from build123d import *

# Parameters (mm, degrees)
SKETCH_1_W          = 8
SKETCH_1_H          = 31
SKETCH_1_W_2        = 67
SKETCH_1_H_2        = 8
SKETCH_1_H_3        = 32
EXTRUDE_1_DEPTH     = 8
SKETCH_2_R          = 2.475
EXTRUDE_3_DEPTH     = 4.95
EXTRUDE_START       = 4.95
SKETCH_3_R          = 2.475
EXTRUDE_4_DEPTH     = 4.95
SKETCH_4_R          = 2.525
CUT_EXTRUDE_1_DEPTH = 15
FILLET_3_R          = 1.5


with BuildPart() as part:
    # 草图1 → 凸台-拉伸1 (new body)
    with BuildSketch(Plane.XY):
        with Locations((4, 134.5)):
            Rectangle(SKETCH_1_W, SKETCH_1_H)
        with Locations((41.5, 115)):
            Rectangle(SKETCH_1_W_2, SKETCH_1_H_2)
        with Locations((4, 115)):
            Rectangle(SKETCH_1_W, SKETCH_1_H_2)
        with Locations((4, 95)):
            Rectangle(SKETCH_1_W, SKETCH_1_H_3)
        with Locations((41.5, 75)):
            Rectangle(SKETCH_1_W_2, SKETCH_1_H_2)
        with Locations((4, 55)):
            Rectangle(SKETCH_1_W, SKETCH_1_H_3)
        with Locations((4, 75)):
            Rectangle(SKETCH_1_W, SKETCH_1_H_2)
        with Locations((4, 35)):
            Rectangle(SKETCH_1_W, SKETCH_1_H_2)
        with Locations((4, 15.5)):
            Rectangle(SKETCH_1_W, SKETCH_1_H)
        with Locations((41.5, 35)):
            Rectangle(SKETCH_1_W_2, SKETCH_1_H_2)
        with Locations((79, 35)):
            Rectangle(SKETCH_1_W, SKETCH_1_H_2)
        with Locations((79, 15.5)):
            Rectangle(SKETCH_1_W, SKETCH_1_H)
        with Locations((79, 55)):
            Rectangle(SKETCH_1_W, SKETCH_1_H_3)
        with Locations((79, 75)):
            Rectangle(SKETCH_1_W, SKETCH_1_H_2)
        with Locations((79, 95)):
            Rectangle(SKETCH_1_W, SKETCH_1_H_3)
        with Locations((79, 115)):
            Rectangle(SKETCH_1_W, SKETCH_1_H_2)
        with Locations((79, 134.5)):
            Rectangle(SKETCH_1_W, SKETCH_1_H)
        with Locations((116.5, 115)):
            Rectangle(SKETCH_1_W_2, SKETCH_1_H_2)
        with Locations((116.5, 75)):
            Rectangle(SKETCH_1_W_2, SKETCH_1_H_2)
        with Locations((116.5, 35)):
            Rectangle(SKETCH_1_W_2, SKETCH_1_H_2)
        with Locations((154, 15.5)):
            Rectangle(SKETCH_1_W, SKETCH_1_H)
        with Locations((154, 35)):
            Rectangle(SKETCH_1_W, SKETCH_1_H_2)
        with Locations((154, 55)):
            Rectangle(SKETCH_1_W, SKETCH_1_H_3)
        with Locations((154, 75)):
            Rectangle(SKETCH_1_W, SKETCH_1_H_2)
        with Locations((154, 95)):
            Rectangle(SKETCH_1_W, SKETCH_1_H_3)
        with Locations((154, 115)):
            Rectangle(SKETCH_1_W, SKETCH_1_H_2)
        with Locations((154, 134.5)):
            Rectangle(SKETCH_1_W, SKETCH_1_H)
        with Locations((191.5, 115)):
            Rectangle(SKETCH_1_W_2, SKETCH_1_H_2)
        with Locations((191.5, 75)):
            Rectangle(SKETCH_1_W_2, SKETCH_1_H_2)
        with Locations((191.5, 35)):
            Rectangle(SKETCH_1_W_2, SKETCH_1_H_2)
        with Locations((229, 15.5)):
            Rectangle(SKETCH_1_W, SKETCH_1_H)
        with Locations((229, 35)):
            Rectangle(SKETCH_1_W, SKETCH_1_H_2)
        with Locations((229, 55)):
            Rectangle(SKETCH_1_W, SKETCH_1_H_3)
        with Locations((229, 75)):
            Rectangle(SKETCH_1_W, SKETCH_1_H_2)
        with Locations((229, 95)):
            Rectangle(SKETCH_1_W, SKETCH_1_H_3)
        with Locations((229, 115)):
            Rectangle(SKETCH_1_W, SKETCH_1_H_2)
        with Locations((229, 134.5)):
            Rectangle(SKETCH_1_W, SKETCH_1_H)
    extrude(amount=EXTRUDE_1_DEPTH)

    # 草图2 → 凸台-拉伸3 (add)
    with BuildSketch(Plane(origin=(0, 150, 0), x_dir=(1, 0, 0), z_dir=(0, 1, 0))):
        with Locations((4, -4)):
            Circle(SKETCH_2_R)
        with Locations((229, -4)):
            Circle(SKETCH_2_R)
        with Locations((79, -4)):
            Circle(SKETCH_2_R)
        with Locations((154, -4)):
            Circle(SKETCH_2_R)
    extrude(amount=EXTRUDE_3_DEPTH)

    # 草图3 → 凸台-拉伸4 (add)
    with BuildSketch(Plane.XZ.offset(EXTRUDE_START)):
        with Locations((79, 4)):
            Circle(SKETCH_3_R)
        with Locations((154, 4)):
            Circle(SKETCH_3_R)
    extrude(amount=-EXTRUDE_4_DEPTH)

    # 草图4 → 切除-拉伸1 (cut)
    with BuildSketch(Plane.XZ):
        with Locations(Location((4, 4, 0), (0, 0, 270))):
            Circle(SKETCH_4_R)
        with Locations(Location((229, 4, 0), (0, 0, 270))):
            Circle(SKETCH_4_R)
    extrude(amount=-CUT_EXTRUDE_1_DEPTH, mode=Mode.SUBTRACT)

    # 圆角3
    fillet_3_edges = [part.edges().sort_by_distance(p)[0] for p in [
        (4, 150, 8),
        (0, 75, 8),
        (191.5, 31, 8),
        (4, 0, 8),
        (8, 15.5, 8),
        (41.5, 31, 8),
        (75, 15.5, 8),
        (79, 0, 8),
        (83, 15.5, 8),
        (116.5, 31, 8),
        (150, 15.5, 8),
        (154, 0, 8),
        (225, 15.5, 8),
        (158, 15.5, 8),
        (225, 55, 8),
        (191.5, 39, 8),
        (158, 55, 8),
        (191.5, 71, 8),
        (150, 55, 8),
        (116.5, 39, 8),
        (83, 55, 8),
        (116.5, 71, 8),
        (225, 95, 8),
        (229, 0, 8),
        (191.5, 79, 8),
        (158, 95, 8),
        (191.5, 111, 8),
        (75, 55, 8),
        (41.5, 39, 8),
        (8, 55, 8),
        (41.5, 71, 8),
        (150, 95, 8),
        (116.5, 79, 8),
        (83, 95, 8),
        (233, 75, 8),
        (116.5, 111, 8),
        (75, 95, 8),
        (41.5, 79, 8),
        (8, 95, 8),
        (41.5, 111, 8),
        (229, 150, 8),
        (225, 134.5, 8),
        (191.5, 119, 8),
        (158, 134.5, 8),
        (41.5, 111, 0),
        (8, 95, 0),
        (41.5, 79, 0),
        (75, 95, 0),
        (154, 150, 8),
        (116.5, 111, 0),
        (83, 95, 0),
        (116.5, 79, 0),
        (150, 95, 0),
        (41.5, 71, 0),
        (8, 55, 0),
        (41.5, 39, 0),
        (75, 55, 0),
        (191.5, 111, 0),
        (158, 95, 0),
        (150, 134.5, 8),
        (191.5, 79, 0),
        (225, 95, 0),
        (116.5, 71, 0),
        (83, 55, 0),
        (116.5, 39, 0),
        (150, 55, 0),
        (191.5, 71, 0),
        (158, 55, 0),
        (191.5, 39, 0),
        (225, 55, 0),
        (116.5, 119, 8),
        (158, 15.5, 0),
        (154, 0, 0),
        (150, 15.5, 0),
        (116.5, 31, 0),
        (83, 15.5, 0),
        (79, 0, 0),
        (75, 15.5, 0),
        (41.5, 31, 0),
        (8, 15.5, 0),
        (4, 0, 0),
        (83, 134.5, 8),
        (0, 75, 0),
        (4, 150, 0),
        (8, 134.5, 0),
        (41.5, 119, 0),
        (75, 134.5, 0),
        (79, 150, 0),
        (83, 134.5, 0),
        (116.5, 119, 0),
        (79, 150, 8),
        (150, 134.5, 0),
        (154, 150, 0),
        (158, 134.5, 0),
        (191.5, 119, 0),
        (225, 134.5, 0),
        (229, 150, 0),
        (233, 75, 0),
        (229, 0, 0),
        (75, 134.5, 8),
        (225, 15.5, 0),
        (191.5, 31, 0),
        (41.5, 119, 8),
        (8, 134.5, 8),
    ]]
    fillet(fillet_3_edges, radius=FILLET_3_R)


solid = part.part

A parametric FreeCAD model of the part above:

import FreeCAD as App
import Part
import Sketcher

V = App.Vector
Q = App.Units.Quantity


def edges_at(feature, points):
    """Names of the edges that pass closest to the given points."""
    edges = feature.Shape.Edges
    near = lambda p: min(range(len(edges)), key=lambda i: edges[i].distToShape(Part.Vertex(*p))[0])
    return sorted({f"Edge{near(p) + 1}" for p in points})


def add_polygon(sketch, points):
    """Adds a closed chain of lines whose ends are joined by coincident constraints."""
    first, n = sketch.GeometryCount, len(points)
    for a, b in zip(points, points[1:] + points[:1]):
        sketch.addGeometry(Part.LineSegment(App.Vector(*a, 0), App.Vector(*b, 0)), False)
    for i in range(n):
        sketch.addConstraint(Sketcher.Constraint("Coincident", first + i, 2, first + (i + 1) % n, 1))

doc = App.newDocument("Part")
params = doc.addObject("Spreadsheet::Sheet", "Params")
for row, (alias, value) in enumerate([
    ("sketch1_width", "8 mm"),
    ("sketch1_width2", "67 mm"),
    ("sketch1_height", "150 mm"),
    ("sketch1_height2", "31 mm"),
    ("sketch1_height3", "32 mm"),
    ("pad1_length", "8 mm"),
    ("sketch2_diameter", "4.95 mm"),
    ("pad2_length", "4.95 mm"),
    ("sketch3_diameter", "4.95 mm"),
    ("pad3_length", "4.95 mm"),
    ("sketch4_diameter", "5.05 mm"),
    ("pocket1_length", "15 mm"),
    ("fillet_radius", "1.5 mm"),
], start=1):
    params.set(f"A{row}", alias)
    params.set(f"B{row}", "=" + value)
    params.setAlias(f"B{row}", alias)

body = doc.addObject("PartDesign::Body", "Body")

sketch1 = body.newObject("Sketcher::SketchObject", "Sketch")
sketch1.AttachmentSupport = (doc.getObject("XY_Plane"), [""])
sketch1.MapMode = "FlatFace"
add_polygon(sketch1, [(233, 0), (233, 150), (225, 150), (225, 119), (158, 119), (158, 150), (150, 150), (150, 119), (83, 119), (83, 150), (75, 150), (75, 119), (8, 119), (8, 150), (0, 150), (0, 0), (8, 0), (8, 31), (75, 31), (75, 0), (83, 0), (83, 31), (150, 31), (150, 0), (158, 0), (158, 31), (225, 31), (225, 0)])
add_polygon(sketch1, [(75, 71), (75, 39), (8, 39), (8, 71)])
add_polygon(sketch1, [(150, 71), (150, 39), (83, 39), (83, 71)])
add_polygon(sketch1, [(225, 71), (225, 39), (158, 39), (158, 71)])
add_polygon(sketch1, [(75, 111), (75, 79), (8, 79), (8, 111)])
add_polygon(sketch1, [(150, 111), (150, 79), (83, 79), (83, 111)])
add_polygon(sketch1, [(225, 111), (225, 79), (158, 79), (158, 111)])
sketch1.addConstraint([
    Sketcher.Constraint("Vertical", 0),
    Sketcher.Constraint("Horizontal", 1),
    Sketcher.Constraint("Vertical", 2),
    Sketcher.Constraint("Horizontal", 3),
    Sketcher.Constraint("Vertical", 4),
    Sketcher.Constraint("Horizontal", 5),
    Sketcher.Constraint("Vertical", 6),
    Sketcher.Constraint("Horizontal", 7),
    Sketcher.Constraint("Vertical", 8),
    Sketcher.Constraint("Horizontal", 9),
    Sketcher.Constraint("Vertical", 10),
    Sketcher.Constraint("Horizontal", 11),
    Sketcher.Constraint("Vertical", 12),
    Sketcher.Constraint("Horizontal", 13),
    Sketcher.Constraint("Vertical", 14),
    Sketcher.Constraint("Horizontal", 15),
    Sketcher.Constraint("Vertical", 16),
    Sketcher.Constraint("Horizontal", 17),
    Sketcher.Constraint("Vertical", 18),
    Sketcher.Constraint("Horizontal", 19),
    Sketcher.Constraint("Vertical", 20),
    Sketcher.Constraint("Horizontal", 21),
    Sketcher.Constraint("Vertical", 22),
    Sketcher.Constraint("Horizontal", 23),
    Sketcher.Constraint("Vertical", 24),
    Sketcher.Constraint("Horizontal", 25),
    Sketcher.Constraint("Vertical", 26),
    Sketcher.Constraint("Horizontal", 27),
    Sketcher.Constraint("Vertical", 28),
    Sketcher.Constraint("Horizontal", 29),
    Sketcher.Constraint("Vertical", 30),
    Sketcher.Constraint("Horizontal", 31),
    Sketcher.Constraint("Vertical", 32),
    Sketcher.Constraint("Horizontal", 33),
    Sketcher.Constraint("Vertical", 34),
    Sketcher.Constraint("Horizontal", 35),
    Sketcher.Constraint("Vertical", 36),
    Sketcher.Constraint("Horizontal", 37),
    Sketcher.Constraint("Vertical", 38),
    Sketcher.Constraint("Horizontal", 39),
    Sketcher.Constraint("Vertical", 40),
    Sketcher.Constraint("Horizontal", 41),
    Sketcher.Constraint("Vertical", 42),
    Sketcher.Constraint("Horizontal", 43),
    Sketcher.Constraint("Vertical", 44),
    Sketcher.Constraint("Horizontal", 45),
    Sketcher.Constraint("Vertical", 46),
    Sketcher.Constraint("Horizontal", 47),
    Sketcher.Constraint("Vertical", 48),
    Sketcher.Constraint("Horizontal", 49),
    Sketcher.Constraint("Vertical", 50),
    Sketcher.Constraint("Horizontal", 51),
    Sketcher.Constraint("Coincident", 14, 2, -1, 1),
    Sketcher.Constraint("PointOnObject", 18, 2, -1),
    Sketcher.Constraint("PointOnObject", 22, 2, -1),
    Sketcher.Constraint("PointOnObject", 26, 2, -1),
    Sketcher.Constraint("Horizontal", 1, 2, 4, 2),
    Sketcher.Constraint("Horizontal", 3, 2, 6, 2),
    Sketcher.Constraint("Horizontal", 5, 2, 8, 2),
    Sketcher.Constraint("Horizontal", 7, 2, 10, 2),
    Sketcher.Constraint("Horizontal", 9, 2, 12, 2),
    Sketcher.Constraint("Horizontal", 17, 2, 20, 2),
    Sketcher.Constraint("Horizontal", 21, 2, 24, 2),
    Sketcher.Constraint("Horizontal", 29, 2, 32, 2),
    Sketcher.Constraint("Horizontal", 31, 2, 34, 2),
    Sketcher.Constraint("Horizontal", 33, 2, 36, 2),
    Sketcher.Constraint("Horizontal", 35, 2, 38, 2),
    Sketcher.Constraint("Horizontal", 41, 2, 44, 2),
    Sketcher.Constraint("Horizontal", 43, 2, 46, 2),
    Sketcher.Constraint("Horizontal", 45, 2, 48, 2),
    Sketcher.Constraint("Horizontal", 47, 2, 50, 2),
    Sketcher.Constraint("Vertical", 12, 2, 15, 2),
    Sketcher.Constraint("Vertical", 10, 2, 17, 2),
    Sketcher.Constraint("Vertical", 8, 2, 19, 2),
    Sketcher.Constraint("Vertical", 6, 2, 21, 2),
    Sketcher.Constraint("Vertical", 4, 2, 23, 2),
    Sketcher.Constraint("Vertical", 2, 2, 25, 2),
    Sketcher.Constraint("Vertical", 18, 2, 28, 2),
    Sketcher.Constraint("Vertical", 16, 2, 29, 2),
    Sketcher.Constraint("Vertical", 22, 2, 32, 2),
    Sketcher.Constraint("Vertical", 20, 2, 33, 2),
    Sketcher.Constraint("Vertical", 26, 2, 36, 2),
    Sketcher.Constraint("Vertical", 24, 2, 37, 2),
    Sketcher.Constraint("Vertical", 31, 2, 40, 2),
    Sketcher.Constraint("Vertical", 30, 2, 41, 2),
    Sketcher.Constraint("Vertical", 35, 2, 44, 2),
    Sketcher.Constraint("Vertical", 34, 2, 45, 2),
    Sketcher.Constraint("Vertical", 39, 2, 48, 2),
    Sketcher.Constraint("Vertical", 38, 2, 49, 2),
    Sketcher.Constraint("Equal", 1, 5),
    Sketcher.Constraint("Equal", 3, 7),
    Sketcher.Constraint("Equal", 5, 9),
    Sketcher.Constraint("Equal", 7, 11),
    Sketcher.Constraint("Equal", 9, 13),
    Sketcher.Constraint("Equal", 12, 16),
    Sketcher.Constraint("Equal", 38, 40),
    Sketcher.Constraint("DistanceX", 1, 2, 1, 1, Q("8 mm")),
    Sketcher.Constraint("DistanceX", 3, 2, 3, 1, Q("67 mm")),
    Sketcher.Constraint("DistanceY", 0, 1, 0, 2, Q("150 mm")),
    Sketcher.Constraint("DistanceY", 2, 2, 2, 1, Q("31 mm")),
    Sketcher.Constraint("DistanceY", 28, 2, 28, 1, Q("32 mm")),
    Sketcher.Constraint("DistanceY", -1, 1, 28, 2, Q("39 mm")),
    Sketcher.Constraint("DistanceY", -1, 1, 40, 2, Q("79 mm")),
])
sketch1.setExpression("Constraints[148]", "Params.sketch1_width")
sketch1.setExpression("Constraints[149]", "Params.sketch1_width2")
sketch1.setExpression("Constraints[150]", "Params.sketch1_height")
sketch1.setExpression("Constraints[151]", "Params.sketch1_height2")
sketch1.setExpression("Constraints[152]", "Params.sketch1_height3")
pad1 = body.newObject("PartDesign::Pad", "Pad")
pad1.Profile = sketch1
pad1.setExpression("Length", "Params.pad1_length")

sketch2 = body.newObject("Sketcher::SketchObject", "Sketch001")
sketch2.AttachmentSupport = (doc.getObject("XZ_Plane"), [""])
sketch2.MapMode = "FlatFace"
sketch2.AttachmentOffset = App.Placement(V(0, 0, -150), App.Rotation())
sketch2.addGeometry([
    Part.Circle(V(4, 4, 0), V(0, 0, 1), 2.475),
    Part.Circle(V(229, 4, 0), V(0, 0, 1), 2.475),
    Part.Circle(V(79, 4, 0), V(0, 0, 1), 2.475),
    Part.Circle(V(154, 4, 0), V(0, 0, 1), 2.475),
], False)
sketch2.addConstraint([
    Sketcher.Constraint("Equal", 0, 1),
    Sketcher.Constraint("Equal", 1, 2),
    Sketcher.Constraint("Equal", 2, 3),
    Sketcher.Constraint("Horizontal", 0, 3, 1, 3),
    Sketcher.Constraint("Horizontal", 1, 3, 2, 3),
    Sketcher.Constraint("Horizontal", 2, 3, 3, 3),
    Sketcher.Constraint("Diameter", 0, Q("4.95 mm")),
    Sketcher.Constraint("DistanceX", -1, 1, 0, 3, Q("4 mm")),
    Sketcher.Constraint("DistanceY", -1, 1, 0, 3, Q("4 mm")),
    Sketcher.Constraint("DistanceX", -1, 1, 1, 3, Q("229 mm")),
    Sketcher.Constraint("DistanceX", -1, 1, 2, 3, Q("79 mm")),
    Sketcher.Constraint("DistanceX", -1, 1, 3, 3, Q("154 mm")),
])
sketch2.setExpression("Constraints[6]", "Params.sketch2_diameter")
pad2 = body.newObject("PartDesign::Pad", "Pad001")
pad2.Profile = sketch2
pad2.setExpression("Length", "Params.pad2_length")
pad2.Reversed = True

sketch3 = body.newObject("Sketcher::SketchObject", "Sketch002")
sketch3.AttachmentSupport = (doc.getObject("XZ_Plane"), [""])
sketch3.MapMode = "FlatFace"
sketch3.AttachmentOffset = App.Placement(V(0, 0, 4.95), App.Rotation())
sketch3.addGeometry([
    Part.Circle(V(79, 4, 0), V(0, 0, 1), 2.475),
    Part.Circle(V(154, 4, 0), V(0, 0, 1), 2.475),
], False)
sketch3.addConstraint([
    Sketcher.Constraint("Equal", 0, 1),
    Sketcher.Constraint("Horizontal", 0, 3, 1, 3),
    Sketcher.Constraint("Diameter", 0, Q("4.95 mm")),
    Sketcher.Constraint("DistanceX", -1, 1, 0, 3, Q("79 mm")),
    Sketcher.Constraint("DistanceY", -1, 1, 0, 3, Q("4 mm")),
    Sketcher.Constraint("DistanceX", -1, 1, 1, 3, Q("154 mm")),
])
sketch3.setExpression("Constraints[2]", "Params.sketch3_diameter")
pad3 = body.newObject("PartDesign::Pad", "Pad002")
pad3.Profile = sketch3
pad3.setExpression("Length", "Params.pad3_length")
pad3.Reversed = True

sketch4 = body.newObject("Sketcher::SketchObject", "Sketch003")
sketch4.AttachmentSupport = (doc.getObject("XZ_Plane"), [""])
sketch4.MapMode = "FlatFace"
sketch4.addGeometry([
    Part.Circle(V(4, 4, 0), V(0, 0, 1), 2.525),
    Part.Circle(V(229, 4, 0), V(0, 0, 1), 2.525),
], False)
sketch4.addConstraint([
    Sketcher.Constraint("Equal", 0, 1),
    Sketcher.Constraint("Horizontal", 0, 3, 1, 3),
    Sketcher.Constraint("Diameter", 0, Q("5.05 mm")),
    Sketcher.Constraint("DistanceX", -1, 1, 0, 3, Q("4 mm")),
    Sketcher.Constraint("DistanceY", -1, 1, 0, 3, Q("4 mm")),
    Sketcher.Constraint("DistanceX", -1, 1, 1, 3, Q("229 mm")),
])
sketch4.setExpression("Constraints[2]", "Params.sketch4_diameter")
pocket1 = body.newObject("PartDesign::Pocket", "Pocket")
pocket1.Profile = sketch4
pocket1.setExpression("Length", "Params.pocket1_length")
doc.recompute()

fillet = body.newObject("PartDesign::Fillet", "Fillet")
fillet.Base = (pocket1, edges_at(pocket1, [
    (4, 150, 8),
    (0, 75, 8),
    (191.5, 31, 8),
    (4, 0, 8),
    (8, 15.5, 8),
    (41.5, 31, 8),
    (75, 15.5, 8),
    (79, 0, 8),
    (83, 15.5, 8),
    (116.5, 31, 8),
    (150, 15.5, 8),
    (154, 0, 8),
    (225, 15.5, 8),
    (158, 15.5, 8),
    (225, 55, 8),
    (191.5, 39, 8),
    (158, 55, 8),
    (191.5, 71, 8),
    (150, 55, 8),
    (116.5, 39, 8),
    (83, 55, 8),
    (116.5, 71, 8),
    (225, 95, 8),
    (229, 0, 8),
    (191.5, 79, 8),
    (158, 95, 8),
    (191.5, 111, 8),
    (75, 55, 8),
    (41.5, 39, 8),
    (8, 55, 8),
    (41.5, 71, 8),
    (150, 95, 8),
    (116.5, 79, 8),
    (83, 95, 8),
    (233, 75, 8),
    (116.5, 111, 8),
    (75, 95, 8),
    (41.5, 79, 8),
    (8, 95, 8),
    (41.5, 111, 8),
    (229, 150, 8),
    (225, 134.5, 8),
    (191.5, 119, 8),
    (158, 134.5, 8),
    (41.5, 111, 0),
    (8, 95, 0),
    (41.5, 79, 0),
    (75, 95, 0),
    (154, 150, 8),
    (116.5, 111, 0),
    (83, 95, 0),
    (116.5, 79, 0),
    (150, 95, 0),
    (41.5, 71, 0),
    (8, 55, 0),
    (41.5, 39, 0),
    (75, 55, 0),
    (191.5, 111, 0),
    (158, 95, 0),
    (150, 134.5, 8),
    (191.5, 79, 0),
    (225, 95, 0),
    (116.5, 71, 0),
    (83, 55, 0),
    (116.5, 39, 0),
    (150, 55, 0),
    (191.5, 71, 0),
    (158, 55, 0),
    (191.5, 39, 0),
    (225, 55, 0),
    (116.5, 119, 8),
    (158, 15.5, 0),
    (154, 0, 0),
    (150, 15.5, 0),
    (116.5, 31, 0),
    (83, 15.5, 0),
    (79, 0, 0),
    (75, 15.5, 0),
    (41.5, 31, 0),
    (8, 15.5, 0),
    (4, 0, 0),
    (83, 134.5, 8),
    (0, 75, 0),
    (4, 150, 0),
    (8, 134.5, 0),
    (41.5, 119, 0),
    (75, 134.5, 0),
    (79, 150, 0),
    (83, 134.5, 0),
    (116.5, 119, 0),
    (79, 150, 8),
    (150, 134.5, 0),
    (154, 150, 0),
    (158, 134.5, 0),
    (191.5, 119, 0),
    (225, 134.5, 0),
    (229, 150, 0),
    (233, 75, 0),
    (229, 0, 0),
    (75, 134.5, 8),
    (225, 15.5, 0),
    (191.5, 31, 0),
    (41.5, 119, 8),
    (8, 134.5, 8),
]))
fillet.setExpression("Radius", "Params.fillet_radius")

doc.recompute()
